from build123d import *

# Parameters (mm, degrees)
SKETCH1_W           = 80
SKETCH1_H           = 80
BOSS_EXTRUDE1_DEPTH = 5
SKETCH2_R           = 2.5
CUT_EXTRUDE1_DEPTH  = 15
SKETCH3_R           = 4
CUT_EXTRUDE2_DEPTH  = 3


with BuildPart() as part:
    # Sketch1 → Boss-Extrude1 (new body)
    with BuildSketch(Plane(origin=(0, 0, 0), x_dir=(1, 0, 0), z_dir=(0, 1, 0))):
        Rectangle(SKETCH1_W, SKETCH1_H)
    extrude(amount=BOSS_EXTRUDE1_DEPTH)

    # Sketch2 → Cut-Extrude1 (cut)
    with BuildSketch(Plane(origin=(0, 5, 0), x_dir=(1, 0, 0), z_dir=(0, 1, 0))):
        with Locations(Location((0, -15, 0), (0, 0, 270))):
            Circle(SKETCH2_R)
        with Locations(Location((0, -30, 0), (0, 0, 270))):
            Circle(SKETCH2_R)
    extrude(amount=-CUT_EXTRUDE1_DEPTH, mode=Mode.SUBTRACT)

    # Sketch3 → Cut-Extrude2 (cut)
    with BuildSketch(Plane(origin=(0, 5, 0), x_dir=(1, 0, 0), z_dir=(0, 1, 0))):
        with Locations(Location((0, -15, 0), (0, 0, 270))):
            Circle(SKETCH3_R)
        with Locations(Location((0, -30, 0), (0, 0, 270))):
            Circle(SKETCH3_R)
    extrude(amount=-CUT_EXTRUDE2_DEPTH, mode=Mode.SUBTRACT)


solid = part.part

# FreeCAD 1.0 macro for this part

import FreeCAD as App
import Part
import Sketcher
Q = App.Units.Quantity


def add_polygon(sketch, points):
    """Adds a closed chain of lines whose ends are joined by coincident constraints."""
    first, n = sketch.GeometryCount, len(points)
    for a, b in zip(points, points[1:] + points[:1]):
        sketch.addGeometry(Part.LineSegment(App.Vector(*a, 0), App.Vector(*b, 0)), False)
    for i in range(n):
        sketch.addConstraint(Sketcher.Constraint("Coincident", first + i, 2, first + (i + 1) % n, 1))

doc = App.newDocument("Part")
body = doc.addObject("PartDesign::Body", "Body")

# Sketch on XZ plane
sketch1 = doc.addObject("Sketcher::SketchObject", "Sketch")
body.addObject(sketch1)
sketch1.AttachmentSupport = (doc.XZ_Plane, [""])
sketch1.MapMode = "FlatFace"
add_polygon(sketch1, [(-40, -40), (-40, 40), (40, 40), (40, -40)])  # lines 0-3
sketch1.addConstraint([
    Sketcher.Constraint("Vertical", 0),
    Sketcher.Constraint("Horizontal", 1),
    Sketcher.Constraint("Vertical", 2),
    Sketcher.Constraint("Horizontal", 3),
    Sketcher.Constraint("Symmetric", 0, 2, 2, 2, -1, 1),
    Sketcher.Constraint("Equal", 3, 0),
    Sketcher.Constraint("DistanceX", 1, 1, 1, 2, Q("80 mm")),
])
pad1 = doc.addObject("PartDesign::Pad", "Pad")
body.addObject(pad1)
pad1.Profile = sketch1
pad1.Length = 5
pad1.Reversed = True

# Sketch on XZ plane
sketch2 = doc.addObject("Sketcher::SketchObject", "Sketch001")
body.addObject(sketch2)
sketch2.AttachmentSupport = (doc.XZ_Plane, [""])
sketch2.MapMode = "FlatFace"
sketch2.AttachmentOffset = App.Placement(App.Vector(0, 0, -5), App.Rotation())
sketch2.addGeometry([
    Part.Circle(App.Vector(0, 15, 0), App.Vector(0, 0, 1), 2.5),
    Part.Circle(App.Vector(0, 30, 0), App.Vector(0, 0, 1), 2.5),
], False)
sketch2.addConstraint([
    Sketcher.Constraint("Equal", 0, 1),
    Sketcher.Constraint("PointOnObject", 0, 3, -2),
    Sketcher.Constraint("PointOnObject", 1, 3, -2),
    Sketcher.Constraint("Diameter", 0, Q("5 mm")),
    Sketcher.Constraint("DistanceY", -1, 1, 0, 3, Q("15 mm")),
    Sketcher.Constraint("DistanceY", -1, 1, 1, 3, Q("30 mm")),
])
pocket1 = doc.addObject("PartDesign::Pocket", "Pocket")
body.addObject(pocket1)
pocket1.Profile = sketch2
pocket1.Length = 15
pocket1.Reversed = True

# Sketch on XZ plane
sketch3 = doc.addObject("Sketcher::SketchObject", "Sketch002")
body.addObject(sketch3)
sketch3.AttachmentSupport = (doc.XZ_Plane, [""])
sketch3.MapMode = "FlatFace"
sketch3.AttachmentOffset = App.Placement(App.Vector(0, 0, -5), App.Rotation())
sketch3.addGeometry([
    Part.Circle(App.Vector(0, 15, 0), App.Vector(0, 0, 1), 4),
    Part.Circle(App.Vector(0, 30, 0), App.Vector(0, 0, 1), 4),
], False)
sketch3.addConstraint([
    Sketcher.Constraint("Equal", 0, 1),
    Sketcher.Constraint("PointOnObject", 0, 3, -2),
    Sketcher.Constraint("PointOnObject", 1, 3, -2),
    Sketcher.Constraint("Diameter", 0, Q("8 mm")),
    Sketcher.Constraint("DistanceY", -1, 1, 0, 3, Q("15 mm")),
    Sketcher.Constraint("DistanceY", -1, 1, 1, 3, Q("30 mm")),
])
pocket2 = doc.addObject("PartDesign::Pocket", "Pocket001")
body.addObject(pocket2)
pocket2.Profile = sketch3
pocket2.Length = 3
pocket2.Reversed = True

doc.recompute()
